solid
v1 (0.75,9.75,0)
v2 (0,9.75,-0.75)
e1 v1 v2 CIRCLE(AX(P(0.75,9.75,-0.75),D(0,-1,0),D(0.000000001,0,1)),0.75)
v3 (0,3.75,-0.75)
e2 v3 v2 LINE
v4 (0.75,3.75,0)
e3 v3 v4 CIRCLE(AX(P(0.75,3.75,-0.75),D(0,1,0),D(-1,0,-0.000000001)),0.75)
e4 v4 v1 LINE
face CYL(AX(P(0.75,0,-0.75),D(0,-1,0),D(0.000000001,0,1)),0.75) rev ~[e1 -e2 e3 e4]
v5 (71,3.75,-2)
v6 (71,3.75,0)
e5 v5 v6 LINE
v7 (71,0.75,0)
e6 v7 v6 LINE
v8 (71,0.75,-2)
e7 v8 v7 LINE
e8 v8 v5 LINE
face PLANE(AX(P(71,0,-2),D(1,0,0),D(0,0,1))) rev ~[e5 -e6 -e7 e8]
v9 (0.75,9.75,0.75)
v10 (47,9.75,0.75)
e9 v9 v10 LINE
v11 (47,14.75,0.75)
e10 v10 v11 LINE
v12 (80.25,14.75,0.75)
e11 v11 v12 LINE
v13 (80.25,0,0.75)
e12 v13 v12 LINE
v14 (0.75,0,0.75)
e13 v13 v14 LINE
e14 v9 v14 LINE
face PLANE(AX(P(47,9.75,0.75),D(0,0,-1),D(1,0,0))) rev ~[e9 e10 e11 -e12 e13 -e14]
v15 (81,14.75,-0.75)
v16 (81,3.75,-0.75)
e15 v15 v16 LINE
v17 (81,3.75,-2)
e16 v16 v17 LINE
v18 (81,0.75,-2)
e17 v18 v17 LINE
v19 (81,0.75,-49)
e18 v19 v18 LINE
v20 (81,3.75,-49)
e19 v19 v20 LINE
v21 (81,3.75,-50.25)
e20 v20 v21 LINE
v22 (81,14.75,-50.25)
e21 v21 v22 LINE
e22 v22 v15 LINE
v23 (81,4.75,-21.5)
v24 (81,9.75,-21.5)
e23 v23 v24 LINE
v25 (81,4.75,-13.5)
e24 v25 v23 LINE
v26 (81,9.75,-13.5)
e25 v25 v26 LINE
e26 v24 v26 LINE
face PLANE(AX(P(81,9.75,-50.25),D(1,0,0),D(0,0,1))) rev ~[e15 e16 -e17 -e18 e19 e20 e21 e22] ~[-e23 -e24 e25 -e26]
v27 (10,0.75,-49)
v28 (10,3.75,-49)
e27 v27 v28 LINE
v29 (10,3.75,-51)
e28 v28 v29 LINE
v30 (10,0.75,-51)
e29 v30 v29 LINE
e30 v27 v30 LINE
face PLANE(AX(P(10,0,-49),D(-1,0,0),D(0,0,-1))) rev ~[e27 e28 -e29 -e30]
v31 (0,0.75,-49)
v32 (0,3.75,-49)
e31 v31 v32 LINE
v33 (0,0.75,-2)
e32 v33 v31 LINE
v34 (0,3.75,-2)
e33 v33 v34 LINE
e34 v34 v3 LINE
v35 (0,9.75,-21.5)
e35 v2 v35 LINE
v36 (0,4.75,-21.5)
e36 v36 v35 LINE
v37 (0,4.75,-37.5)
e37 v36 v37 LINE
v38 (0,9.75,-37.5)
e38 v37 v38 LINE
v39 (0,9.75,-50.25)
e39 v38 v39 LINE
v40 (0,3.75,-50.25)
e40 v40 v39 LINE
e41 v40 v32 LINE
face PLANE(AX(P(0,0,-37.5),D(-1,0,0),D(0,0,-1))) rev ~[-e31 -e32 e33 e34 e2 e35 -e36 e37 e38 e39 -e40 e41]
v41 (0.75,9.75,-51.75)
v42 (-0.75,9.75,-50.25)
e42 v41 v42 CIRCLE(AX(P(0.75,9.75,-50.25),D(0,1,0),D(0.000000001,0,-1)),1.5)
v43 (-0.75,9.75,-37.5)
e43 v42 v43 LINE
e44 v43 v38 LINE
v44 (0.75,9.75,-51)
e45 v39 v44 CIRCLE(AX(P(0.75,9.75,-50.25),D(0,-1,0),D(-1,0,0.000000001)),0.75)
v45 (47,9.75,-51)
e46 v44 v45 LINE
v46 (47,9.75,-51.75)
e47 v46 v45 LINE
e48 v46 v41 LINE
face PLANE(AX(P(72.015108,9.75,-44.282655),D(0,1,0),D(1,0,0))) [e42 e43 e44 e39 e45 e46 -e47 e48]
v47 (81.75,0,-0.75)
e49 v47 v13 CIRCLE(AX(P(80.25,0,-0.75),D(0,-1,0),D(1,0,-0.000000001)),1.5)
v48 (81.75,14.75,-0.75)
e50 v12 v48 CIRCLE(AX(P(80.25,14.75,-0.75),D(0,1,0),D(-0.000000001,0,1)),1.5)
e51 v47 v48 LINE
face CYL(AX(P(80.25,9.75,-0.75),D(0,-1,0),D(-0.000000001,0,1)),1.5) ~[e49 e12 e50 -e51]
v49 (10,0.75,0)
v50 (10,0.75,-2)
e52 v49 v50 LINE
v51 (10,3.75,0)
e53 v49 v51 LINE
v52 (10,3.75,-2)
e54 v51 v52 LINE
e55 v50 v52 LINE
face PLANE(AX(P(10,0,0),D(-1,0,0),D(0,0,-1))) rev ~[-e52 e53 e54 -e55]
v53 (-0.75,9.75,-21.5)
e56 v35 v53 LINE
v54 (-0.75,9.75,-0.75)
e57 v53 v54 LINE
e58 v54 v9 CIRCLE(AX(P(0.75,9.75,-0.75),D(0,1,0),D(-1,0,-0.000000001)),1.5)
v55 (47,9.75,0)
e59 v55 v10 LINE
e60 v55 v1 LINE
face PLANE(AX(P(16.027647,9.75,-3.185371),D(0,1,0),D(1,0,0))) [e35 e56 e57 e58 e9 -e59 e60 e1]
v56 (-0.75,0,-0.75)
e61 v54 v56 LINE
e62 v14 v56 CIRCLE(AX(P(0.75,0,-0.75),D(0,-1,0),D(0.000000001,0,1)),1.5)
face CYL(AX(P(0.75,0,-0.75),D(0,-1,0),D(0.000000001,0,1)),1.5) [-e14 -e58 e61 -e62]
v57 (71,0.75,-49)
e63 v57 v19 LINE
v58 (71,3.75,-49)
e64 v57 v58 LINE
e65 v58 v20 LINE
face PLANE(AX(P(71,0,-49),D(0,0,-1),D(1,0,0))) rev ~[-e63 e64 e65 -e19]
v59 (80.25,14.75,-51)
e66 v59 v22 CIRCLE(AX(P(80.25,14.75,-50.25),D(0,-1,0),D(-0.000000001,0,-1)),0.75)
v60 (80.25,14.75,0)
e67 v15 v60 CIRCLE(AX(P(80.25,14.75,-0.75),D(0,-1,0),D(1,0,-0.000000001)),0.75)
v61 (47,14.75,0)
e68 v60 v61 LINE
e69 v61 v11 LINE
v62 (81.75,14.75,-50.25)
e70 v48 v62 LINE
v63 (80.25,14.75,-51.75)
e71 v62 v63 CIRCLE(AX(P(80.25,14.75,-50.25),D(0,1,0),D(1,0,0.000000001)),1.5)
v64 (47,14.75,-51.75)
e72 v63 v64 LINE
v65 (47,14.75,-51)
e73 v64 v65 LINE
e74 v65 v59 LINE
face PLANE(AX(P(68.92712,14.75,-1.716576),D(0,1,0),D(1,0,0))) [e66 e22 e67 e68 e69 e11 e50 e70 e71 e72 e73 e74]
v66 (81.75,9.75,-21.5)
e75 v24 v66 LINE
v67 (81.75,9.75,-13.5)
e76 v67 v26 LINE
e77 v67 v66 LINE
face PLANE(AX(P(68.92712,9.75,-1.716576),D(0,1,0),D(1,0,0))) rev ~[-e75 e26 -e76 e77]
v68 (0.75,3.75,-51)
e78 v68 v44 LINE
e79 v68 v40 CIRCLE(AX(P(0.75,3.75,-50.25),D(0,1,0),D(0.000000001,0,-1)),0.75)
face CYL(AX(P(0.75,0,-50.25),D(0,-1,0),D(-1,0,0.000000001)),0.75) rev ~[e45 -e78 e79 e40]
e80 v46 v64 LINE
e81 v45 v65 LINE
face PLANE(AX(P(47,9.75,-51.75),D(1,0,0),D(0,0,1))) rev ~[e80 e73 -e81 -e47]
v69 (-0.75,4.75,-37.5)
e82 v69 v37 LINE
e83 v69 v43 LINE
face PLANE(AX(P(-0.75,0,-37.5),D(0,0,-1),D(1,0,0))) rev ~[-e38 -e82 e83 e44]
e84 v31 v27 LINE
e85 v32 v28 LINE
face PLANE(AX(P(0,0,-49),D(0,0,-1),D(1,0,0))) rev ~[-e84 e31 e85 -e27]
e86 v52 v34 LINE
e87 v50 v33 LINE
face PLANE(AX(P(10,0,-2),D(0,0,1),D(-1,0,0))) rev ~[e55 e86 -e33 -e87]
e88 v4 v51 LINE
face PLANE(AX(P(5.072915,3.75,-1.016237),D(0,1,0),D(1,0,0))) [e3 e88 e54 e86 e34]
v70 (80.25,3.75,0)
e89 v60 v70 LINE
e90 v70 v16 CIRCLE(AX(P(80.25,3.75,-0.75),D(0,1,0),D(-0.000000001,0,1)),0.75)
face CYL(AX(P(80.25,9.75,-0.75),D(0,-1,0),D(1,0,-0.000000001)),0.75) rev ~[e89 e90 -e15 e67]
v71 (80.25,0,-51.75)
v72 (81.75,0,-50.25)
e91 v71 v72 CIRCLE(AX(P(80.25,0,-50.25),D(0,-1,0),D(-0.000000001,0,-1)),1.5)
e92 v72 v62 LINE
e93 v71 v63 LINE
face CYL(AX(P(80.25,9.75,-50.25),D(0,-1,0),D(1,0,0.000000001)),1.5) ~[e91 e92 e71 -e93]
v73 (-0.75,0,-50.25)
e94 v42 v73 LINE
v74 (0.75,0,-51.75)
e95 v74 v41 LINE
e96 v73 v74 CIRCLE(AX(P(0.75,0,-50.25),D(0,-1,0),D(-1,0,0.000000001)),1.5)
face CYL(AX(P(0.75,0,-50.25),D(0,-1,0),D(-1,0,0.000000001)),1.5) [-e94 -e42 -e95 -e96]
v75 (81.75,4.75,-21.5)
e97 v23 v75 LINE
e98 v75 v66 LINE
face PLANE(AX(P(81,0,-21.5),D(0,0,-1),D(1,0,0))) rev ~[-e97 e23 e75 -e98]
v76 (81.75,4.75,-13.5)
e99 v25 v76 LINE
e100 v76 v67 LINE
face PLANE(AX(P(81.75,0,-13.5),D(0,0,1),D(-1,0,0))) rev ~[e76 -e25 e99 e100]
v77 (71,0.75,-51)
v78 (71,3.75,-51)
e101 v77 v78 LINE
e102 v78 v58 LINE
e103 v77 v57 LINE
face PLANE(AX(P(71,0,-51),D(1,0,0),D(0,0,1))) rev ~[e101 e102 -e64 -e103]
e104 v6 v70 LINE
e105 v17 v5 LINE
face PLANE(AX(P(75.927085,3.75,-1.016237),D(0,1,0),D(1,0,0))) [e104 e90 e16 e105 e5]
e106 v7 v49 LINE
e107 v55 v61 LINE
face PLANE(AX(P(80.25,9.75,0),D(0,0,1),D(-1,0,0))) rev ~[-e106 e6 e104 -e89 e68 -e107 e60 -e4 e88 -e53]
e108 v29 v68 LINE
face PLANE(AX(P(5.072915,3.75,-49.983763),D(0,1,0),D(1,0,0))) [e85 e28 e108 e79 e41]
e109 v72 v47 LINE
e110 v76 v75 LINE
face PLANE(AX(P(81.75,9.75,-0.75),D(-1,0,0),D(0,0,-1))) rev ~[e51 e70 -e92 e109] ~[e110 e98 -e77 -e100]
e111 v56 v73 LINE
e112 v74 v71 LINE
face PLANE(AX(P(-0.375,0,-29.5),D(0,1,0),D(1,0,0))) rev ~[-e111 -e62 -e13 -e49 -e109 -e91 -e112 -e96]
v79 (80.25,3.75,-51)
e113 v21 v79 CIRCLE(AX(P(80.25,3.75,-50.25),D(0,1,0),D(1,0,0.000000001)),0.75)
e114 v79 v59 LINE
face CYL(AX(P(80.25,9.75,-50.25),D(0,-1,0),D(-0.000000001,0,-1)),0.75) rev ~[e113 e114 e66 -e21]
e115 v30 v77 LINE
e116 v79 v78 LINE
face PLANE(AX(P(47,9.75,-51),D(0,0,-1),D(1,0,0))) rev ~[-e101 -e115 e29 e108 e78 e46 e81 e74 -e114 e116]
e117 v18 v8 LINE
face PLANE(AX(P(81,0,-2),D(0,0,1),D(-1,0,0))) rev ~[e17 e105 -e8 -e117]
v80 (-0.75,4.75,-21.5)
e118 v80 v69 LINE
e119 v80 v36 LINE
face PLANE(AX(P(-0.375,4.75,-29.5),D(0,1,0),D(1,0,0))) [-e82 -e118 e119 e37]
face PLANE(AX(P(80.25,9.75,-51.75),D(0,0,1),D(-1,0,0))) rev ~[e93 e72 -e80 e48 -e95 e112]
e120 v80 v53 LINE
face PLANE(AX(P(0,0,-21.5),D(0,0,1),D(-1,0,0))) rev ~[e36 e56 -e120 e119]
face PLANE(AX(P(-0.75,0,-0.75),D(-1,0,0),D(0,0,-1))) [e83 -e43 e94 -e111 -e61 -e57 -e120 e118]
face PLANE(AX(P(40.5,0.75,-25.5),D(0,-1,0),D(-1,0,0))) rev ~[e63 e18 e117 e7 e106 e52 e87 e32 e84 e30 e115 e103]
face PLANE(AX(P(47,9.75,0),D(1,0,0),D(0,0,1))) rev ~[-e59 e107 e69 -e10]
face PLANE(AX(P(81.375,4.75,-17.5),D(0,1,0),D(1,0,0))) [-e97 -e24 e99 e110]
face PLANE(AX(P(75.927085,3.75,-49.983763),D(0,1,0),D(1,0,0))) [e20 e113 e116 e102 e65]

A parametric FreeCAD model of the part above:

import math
import FreeCAD as App
import Part
import Sketcher


def add_polygon(sketch, points):
    """Adds a closed chain of lines whose ends are joined by coincident constraints."""
    first, n = sketch.GeometryCount, len(points)
    for a, b in zip(points, points[1:] + points[:1]):
        sketch.addGeometry(Part.LineSegment(App.Vector(*a, 0), App.Vector(*b, 0)), False)
    for i in range(n):
        sketch.addConstraint(Sketcher.Constraint("Coincident", first + i, 2, first + (i + 1) % n, 1))

doc = App.newDocument("Part")
body = doc.addObject("PartDesign::Body", "Body")

sketch1 = doc.addObject("Sketcher::SketchObject", "Sketch")
body.addObject(sketch1)
sketch1.AttachmentSupport = (doc.XZ_Plane, [""])
sketch1.MapMode = "FlatFace"
sketch1.addGeometry(Part.LineSegment(App.Vector(80.2, -51.8, 0), App.Vector(0.8, -51.8, 0)), False)
sketch1.addGeometry(Part.ArcOfCircle(Part.Circle(App.Vector(0.7, -50.3, 0), App.Vector(0, 0, 1), 1.5), math.radians(180), math.radians(270)), False)
sketch1.addGeometry(Part.LineSegment(App.Vector(-0.8, -50.2, 0), App.Vector(-0.8, -0.8, 0)), False)
sketch1.addGeometry(Part.ArcOfCircle(Part.Circle(App.Vector(0.7, -0.7, 0), App.Vector(0, 0, 1), 1.5), math.radians(90), math.radians(180)), False)
sketch1.addGeometry(Part.LineSegment(App.Vector(0.8, 0.8, 0), App.Vector(80.2, 0.8, 0)), False)
sketch1.addGeometry(Part.ArcOfCircle(Part.Circle(App.Vector(80.3, -0.7, 0), App.Vector(0, 0, 1), 1.5), math.radians(0), math.radians(90)), False)
sketch1.addGeometry(Part.LineSegment(App.Vector(81.8, -0.8, 0), App.Vector(81.8, -50.2, 0)), False)
sketch1.addGeometry(Part.ArcOfCircle(Part.Circle(App.Vector(80.3, -50.3, 0), App.Vector(0, 0, 1), 1.5), math.radians(-90), math.radians(0)), False)
sketch1.addConstraint(Sketcher.Constraint("Tangent", 0, 2, 1, 2))
sketch1.addConstraint(Sketcher.Constraint("Tangent", 1, 1, 2, 1))
sketch1.addConstraint(Sketcher.Constraint("Tangent", 2, 2, 3, 2))
sketch1.addConstraint(Sketcher.Constraint("Tangent", 3, 1, 4, 1))
sketch1.addConstraint(Sketcher.Constraint("Tangent", 4, 2, 5, 2))
sketch1.addConstraint(Sketcher.Constraint("Tangent", 5, 1, 6, 1))
sketch1.addConstraint(Sketcher.Constraint("Tangent", 6, 2, 7, 2))
sketch1.addConstraint(Sketcher.Constraint("Tangent", 7, 1, 0, 1))
sketch1.addConstraint(Sketcher.Constraint("Horizontal", 0))
sketch1.addConstraint(Sketcher.Constraint("Vertical", 2))
sketch1.addConstraint(Sketcher.Constraint("Horizontal", 4))
sketch1.addConstraint(Sketcher.Constraint("Vertical", 6))
sketch1.addConstraint(Sketcher.Constraint("Equal", 1, 3))
sketch1.addConstraint(Sketcher.Constraint("Equal", 3, 5))
sketch1.addConstraint(Sketcher.Constraint("Equal", 5, 7))
sketch1.addConstraint(Sketcher.Constraint("Symmetric", 2, 2, 3, 1, -1, 1))
sketch1.addConstraint(Sketcher.Constraint("Radius", 1, 1.5))
sketch1.addConstraint(Sketcher.Constraint("DistanceX", 0, 2, 0, 1, 79.5))
sketch1.addConstraint(Sketcher.Constraint("DistanceY", 2, 1, 2, 2, 49.5))
pad1 = doc.addObject("PartDesign::Pad", "Pad")
body.addObject(pad1)
pad1.Profile = sketch1
pad1.Length = 0.75
pad1.Reversed = True

sketch2 = doc.addObject("Sketcher::SketchObject", "Sketch001")
body.addObject(sketch2)
sketch2.AttachmentSupport = (doc.XZ_Plane, [""])
sketch2.MapMode = "FlatFace"
sketch2.addGeometry(Part.LineSegment(App.Vector(10, -2, 0), App.Vector(0, -2, 0)), False)
sketch2.addGeometry(Part.LineSegment(App.Vector(0, -2, 0), App.Vector(0, -0.8, 0)), False)
sketch2.addGeometry(Part.ArcOfCircle(Part.Circle(App.Vector(0.8, -0.8, 0), App.Vector(0, 0, 1), 0.8), math.radians(90), math.radians(180)), False)
sketch2.addGeometry(Part.LineSegment(App.Vector(0.8, 0, 0), App.Vector(10, 0, 0)), False)
sketch2.addGeometry(Part.LineSegment(App.Vector(10, 0, 0), App.Vector(10, -2, 0)), False)
sketch2.addGeometry(Part.LineSegment(App.Vector(0, -50.2, 0), App.Vector(0, -49, 0)), False)
sketch2.addGeometry(Part.LineSegment(App.Vector(0, -49, 0), App.Vector(10, -49, 0)), False)
sketch2.addGeometry(Part.LineSegment(App.Vector(10, -49, 0), App.Vector(10, -51, 0)), False)
sketch2.addGeometry(Part.LineSegment(App.Vector(10, -51, 0), App.Vector(0.8, -51, 0)), False)
sketch2.addGeometry(Part.ArcOfCircle(Part.Circle(App.Vector(0.8, -50.2, 0), App.Vector(0, 0, 1), 0.8), math.radians(180), math.radians(270)), False)
sketch2.addGeometry(Part.LineSegment(App.Vector(80.2, -51, 0), App.Vector(71, -51, 0)), False)
sketch2.addGeometry(Part.LineSegment(App.Vector(71, -51, 0), App.Vector(71, -49, 0)), False)
sketch2.addGeometry(Part.LineSegment(App.Vector(71, -49, 0), App.Vector(81, -49, 0)), False)
sketch2.addGeometry(Part.LineSegment(App.Vector(81, -49, 0), App.Vector(81, -50.2, 0)), False)
sketch2.addGeometry(Part.ArcOfCircle(Part.Circle(App.Vector(80.2, -50.2, 0), App.Vector(0, 0, 1), 0.8), math.radians(-90), math.radians(0)), False)
sketch2.addGeometry(Part.LineSegment(App.Vector(71, -2, 0), App.Vector(71, 0, 0)), False)
sketch2.addGeometry(Part.LineSegment(App.Vector(71, 0, 0), App.Vector(80.2, 0, 0)), False)
sketch2.addGeometry(Part.ArcOfCircle(Part.Circle(App.Vector(80.2, -0.8, 0), App.Vector(0, 0, 1), 0.8), math.radians(0), math.radians(90)), False)
sketch2.addGeometry(Part.LineSegment(App.Vector(81, -0.8, 0), App.Vector(81, -2, 0)), False)
sketch2.addGeometry(Part.LineSegment(App.Vector(81, -2, 0), App.Vector(71, -2, 0)), False)
sketch2.addConstraint(Sketcher.Constraint("Coincident", 0, 2, 1, 1))
sketch2.addConstraint(Sketcher.Constraint("Tangent", 1, 2, 2, 2))
sketch2.addConstraint(Sketcher.Constraint("Tangent", 2, 1, 3, 1))
sketch2.addConstraint(Sketcher.Constraint("Coincident", 3, 2, 4, 1))
sketch2.addConstraint(Sketcher.Constraint("Coincident", 4, 2, 0, 1))
sketch2.addConstraint(Sketcher.Constraint("Coincident", 5, 2, 6, 1))
sketch2.addConstraint(Sketcher.Constraint("Coincident", 6, 2, 7, 1))
sketch2.addConstraint(Sketcher.Constraint("Coincident", 7, 2, 8, 1))
sketch2.addConstraint(Sketcher.Constraint("Tangent", 8, 2, 9, 2))
sketch2.addConstraint(Sketcher.Constraint("Tangent", 9, 1, 5, 1))
sketch2.addConstraint(Sketcher.Constraint("Coincident", 10, 2, 11, 1))
sketch2.addConstraint(Sketcher.Constraint("Coincident", 11, 2, 12, 1))
sketch2.addConstraint(Sketcher.Constraint("Coincident", 12, 2, 13, 1))
sketch2.addConstraint(Sketcher.Constraint("Tangent", 13, 2, 14, 2))
sketch2.addConstraint(Sketcher.Constraint("Tangent", 14, 1, 10, 1))
sketch2.addConstraint(Sketcher.Constraint("Coincident", 15, 2, 16, 1))
sketch2.addConstraint(Sketcher.Constraint("Tangent", 16, 2, 17, 2))
sketch2.addConstraint(Sketcher.Constraint("Tangent", 17, 1, 18, 1))
sketch2.addConstraint(Sketcher.Constraint("Coincident", 18, 2, 19, 1))
sketch2.addConstraint(Sketcher.Constraint("Coincident", 19, 2, 15, 1))
sketch2.addConstraint(Sketcher.Constraint("Horizontal", 0))
sketch2.addConstraint(Sketcher.Constraint("Vertical", 1))
sketch2.addConstraint(Sketcher.Constraint("Horizontal", 3))
sketch2.addConstraint(Sketcher.Constraint("Vertical", 4))
sketch2.addConstraint(Sketcher.Constraint("Vertical", 5))
sketch2.addConstraint(Sketcher.Constraint("Horizontal", 6))
sketch2.addConstraint(Sketcher.Constraint("Vertical", 7))
sketch2.addConstraint(Sketcher.Constraint("Horizontal", 8))
sketch2.addConstraint(Sketcher.Constraint("Horizontal", 10))
sketch2.addConstraint(Sketcher.Constraint("Vertical", 11))
sketch2.addConstraint(Sketcher.Constraint("Horizontal", 12))
sketch2.addConstraint(Sketcher.Constraint("Vertical", 13))
sketch2.addConstraint(Sketcher.Constraint("Vertical", 15))
sketch2.addConstraint(Sketcher.Constraint("Horizontal", 16))
sketch2.addConstraint(Sketcher.Constraint("Vertical", 18))
sketch2.addConstraint(Sketcher.Constraint("Horizontal", 19))
sketch2.addConstraint(Sketcher.Constraint("Equal", 2, 9))
sketch2.addConstraint(Sketcher.Constraint("Equal", 9, 14))
sketch2.addConstraint(Sketcher.Constraint("Equal", 14, 17))
sketch2.addConstraint(Sketcher.Constraint("PointOnObject", 0, 2, -2))
sketch2.addConstraint(Sketcher.Constraint("PointOnObject", 2, 1, -1))
sketch2.addConstraint(Sketcher.Constraint("PointOnObject", 5, 2, -2))
sketch2.addConstraint(Sketcher.Constraint("PointOnObject", 15, 2, -1))
sketch2.addConstraint(Sketcher.Constraint("Horizontal", 9, 3, 14, 3))
sketch2.addConstraint(Sketcher.Constraint("Horizontal", 6, 2, 11, 2))
sketch2.addConstraint(Sketcher.Constraint("Horizontal", 4, 2, 18, 2))
sketch2.addConstraint(Sketcher.Constraint("Vertical", 14, 3, 17, 3))
sketch2.addConstraint(Sketcher.Constraint("Vertical", 4, 2, 6, 2))
sketch2.addConstraint(Sketcher.Constraint("Vertical", 11, 2, 15, 2))
sketch2.addConstraint(Sketcher.Constraint("Equal", 8, 10))
sketch2.addConstraint(Sketcher.Constraint("Equal", 1, 5))
sketch2.addConstraint(Sketcher.Constraint("DistanceX", 0, 2, 0, 1, 10.0))
sketch2.addConstraint(Sketcher.Constraint("DistanceY", 4, 2, 4, 1, 2.0))
sketch2.addConstraint(Sketcher.Constraint("Radius", 2, 0.75))
sketch2.addConstraint(Sketcher.Constraint("DistanceY", 5, 2, -1, 1, 49.0))
sketch2.addConstraint(Sketcher.Constraint("DistanceX", -1, 1, 10, 2, 71.0))
pad2 = doc.addObject("PartDesign::Pad", "Pad001")
body.addObject(pad2)
pad2.Profile = sketch2
pad2.Length = 3.75
pad2.Reversed = True

sketch3 = doc.addObject("Sketcher::SketchObject", "Sketch002")
body.addObject(sketch3)
sketch3.AttachmentSupport = (doc.XZ_Plane, [""])
sketch3.MapMode = "FlatFace"
sketch3.addGeometry(Part.LineSegment(App.Vector(0, -21.5, 0), App.Vector(-0.8, -21.5, 0)), False)
sketch3.addGeometry(Part.LineSegment(App.Vector(-0.8, -21.5, 0), App.Vector(-0.8, -0.8, 0)), False)
sketch3.addGeometry(Part.ArcOfCircle(Part.Circle(App.Vector(0.7, -0.7, 0), App.Vector(0, 0, 1), 1.5), math.radians(90), math.radians(180)), False)
sketch3.addGeometry(Part.LineSegment(App.Vector(0.8, 0.8, 0), App.Vector(80.2, 0.8, 0)), False)
sketch3.addGeometry(Part.ArcOfCircle(Part.Circle(App.Vector(80.3, -0.7, 0), App.Vector(0, 0, 1), 1.5), math.radians(0), math.radians(90)), False)
sketch3.addGeometry(Part.LineSegment(App.Vector(81.8, -0.8, 0), App.Vector(81.8, -13.5, 0)), False)
sketch3.addGeometry(Part.LineSegment(App.Vector(81.8, -13.5, 0), App.Vector(81, -13.5, 0)), False)
sketch3.addGeometry(Part.LineSegment(App.Vector(81, -13.5, 0), App.Vector(81, -0.8, 0)), False)
sketch3.addGeometry(Part.ArcOfCircle(Part.Circle(App.Vector(80.2, -0.8, 0), App.Vector(0, 0, 1), 0.8), math.radians(0), math.radians(90)), False)
sketch3.addGeometry(Part.LineSegment(App.Vector(80.2, 0, 0), App.Vector(0.8, 0, 0)), False)
sketch3.addGeometry(Part.ArcOfCircle(Part.Circle(App.Vector(0.8, -0.8, 0), App.Vector(0, 0, 1), 0.8), math.radians(90), math.radians(180)), False)
sketch3.addGeometry(Part.LineSegment(App.Vector(0, -0.8, 0), App.Vector(0, -21.5, 0)), False)
sketch3.addGeometry(Part.ArcOfCircle(Part.Circle(App.Vector(80.2, -50.2, 0), App.Vector(0, 0, 1), 0.8), math.radians(-90), math.radians(0)), False)
sketch3.addGeometry(Part.LineSegment(App.Vector(81, -50.2, 0), App.Vector(81, -21.5, 0)), False)
sketch3.addGeometry(Part.LineSegment(App.Vector(81, -21.5, 0), App.Vector(81.8, -21.5, 0)), False)
sketch3.addGeometry(Part.LineSegment(App.Vector(81.8, -21.5, 0), App.Vector(81.8, -50.2, 0)), False)
sketch3.addGeometry(Part.ArcOfCircle(Part.Circle(App.Vector(80.3, -50.3, 0), App.Vector(0, 0, 1), 1.5), math.radians(-90), math.radians(0)), False)
sketch3.addGeometry(Part.LineSegment(App.Vector(80.2, -51.8, 0), App.Vector(0.8, -51.8, 0)), False)
sketch3.addGeometry(Part.ArcOfCircle(Part.Circle(App.Vector(0.7, -50.3, 0), App.Vector(0, 0, 1), 1.5), math.radians(180), math.radians(270)), False)
sketch3.addGeometry(Part.LineSegment(App.Vector(-0.8, -50.2, 0), App.Vector(-0.8, -37.5, 0)), False)
sketch3.addGeometry(Part.LineSegment(App.Vector(-0.8, -37.5, 0), App.Vector(0, -37.5, 0)), False)
sketch3.addGeometry(Part.LineSegment(App.Vector(0, -37.5, 0), App.Vector(0, -50.2, 0)), False)
sketch3.addGeometry(Part.ArcOfCircle(Part.Circle(App.Vector(0.8, -50.2, 0), App.Vector(0, 0, 1), 0.8), math.radians(180), math.radians(270)), False)
sketch3.addGeometry(Part.LineSegment(App.Vector(0.8, -51, 0), App.Vector(80.2, -51, 0)), False)
sketch3.addConstraint(Sketcher.Constraint("Coincident", 0, 2, 1, 1))
sketch3.addConstraint(Sketcher.Constraint("Tangent", 1, 2, 2, 2))
sketch3.addConstraint(Sketcher.Constraint("Tangent", 2, 1, 3, 1))
sketch3.addConstraint(Sketcher.Constraint("Tangent", 3, 2, 4, 2))
sketch3.addConstraint(Sketcher.Constraint("Tangent", 4, 1, 5, 1))
sketch3.addConstraint(Sketcher.Constraint("Coincident", 5, 2, 6, 1))
sketch3.addConstraint(Sketcher.Constraint("Coincident", 6, 2, 7, 1))
sketch3.addConstraint(Sketcher.Constraint("Tangent", 7, 2, 8, 1))
sketch3.addConstraint(Sketcher.Constraint("Tangent", 8, 2, 9, 1))
sketch3.addConstraint(Sketcher.Constraint("Tangent", 9, 2, 10, 1))
sketch3.addConstraint(Sketcher.Constraint("Tangent", 10, 2, 11, 1))
sketch3.addConstraint(Sketcher.Constraint("Coincident", 11, 2, 0, 1))
sketch3.addConstraint(Sketcher.Constraint("Tangent", 12, 2, 13, 1))
sketch3.addConstraint(Sketcher.Constraint("Coincident", 13, 2, 14, 1))
sketch3.addConstraint(Sketcher.Constraint("Coincident", 14, 2, 15, 1))
sketch3.addConstraint(Sketcher.Constraint("Tangent", 15, 2, 16, 2))
sketch3.addConstraint(Sketcher.Constraint("Tangent", 16, 1, 17, 1))
sketch3.addConstraint(Sketcher.Constraint("Tangent", 17, 2, 18, 2))
sketch3.addConstraint(Sketcher.Constraint("Tangent", 18, 1, 19, 1))
sketch3.addConstraint(Sketcher.Constraint("Coincident", 19, 2, 20, 1))
sketch3.addConstraint(Sketcher.Constraint("Coincident", 20, 2, 21, 1))
sketch3.addConstraint(Sketcher.Constraint("Tangent", 21, 2, 22, 1))
sketch3.addConstraint(Sketcher.Constraint("Tangent", 22, 2, 23, 1))
sketch3.addConstraint(Sketcher.Constraint("Tangent", 23, 2, 12, 1))
sketch3.addConstraint(Sketcher.Constraint("Horizontal", 0))
sketch3.addConstraint(Sketcher.Constraint("Vertical", 1))
sketch3.addConstraint(Sketcher.Constraint("Horizontal", 3))
sketch3.addConstraint(Sketcher.Constraint("Vertical", 5))
sketch3.addConstraint(Sketcher.Constraint("Horizontal", 6))
sketch3.addConstraint(Sketcher.Constraint("Vertical", 7))
sketch3.addConstraint(Sketcher.Constraint("Horizontal", 9))
sketch3.addConstraint(Sketcher.Constraint("Vertical", 11))
sketch3.addConstraint(Sketcher.Constraint("Vertical", 13))
sketch3.addConstraint(Sketcher.Constraint("Horizontal", 14))
sketch3.addConstraint(Sketcher.Constraint("Vertical", 15))
sketch3.addConstraint(Sketcher.Constraint("Horizontal", 17))
sketch3.addConstraint(Sketcher.Constraint("Vertical", 19))
sketch3.addConstraint(Sketcher.Constraint("Horizontal", 20))
sketch3.addConstraint(Sketcher.Constraint("Vertical", 21))
sketch3.addConstraint(Sketcher.Constraint("Horizontal", 23))
sketch3.addConstraint(Sketcher.Constraint("Coincident", 8, 3, 4, 3))
sketch3.addConstraint(Sketcher.Constraint("Coincident", 10, 3, 2, 3))
sketch3.addConstraint(Sketcher.Constraint("Coincident", 16, 3, 12, 3))
sketch3.addConstraint(Sketcher.Constraint("Coincident", 22, 3, 18, 3))
sketch3.addConstraint(Sketcher.Constraint("Equal", 2, 4))
sketch3.addConstraint(Sketcher.Constraint("Equal", 10, 12))
sketch3.addConstraint(Sketcher.Constraint("Equal", 4, 16))
sketch3.addConstraint(Sketcher.Constraint("Equal", 16, 18))
sketch3.addConstraint(Sketcher.Constraint("Symmetric", 1, 2, 2, 1, -1, 1))
sketch3.addConstraint(Sketcher.Constraint("PointOnObject", 8, 2, -1))
sketch3.addConstraint(Sketcher.Constraint("PointOnObject", 20, 2, -2))
sketch3.addConstraint(Sketcher.Constraint("Horizontal", 11, 2, 13, 2))
sketch3.addConstraint(Sketcher.Constraint("Vertical", 8, 3, 12, 3))
sketch3.addConstraint(Sketcher.Constraint("Equal", 7, 19))
sketch3.addConstraint(Sketcher.Constraint("Radius", 2, 1.5))
sketch3.addConstraint(Sketcher.Constraint("DistanceX", 3, 1, 3, 2, 79.5))
sketch3.addConstraint(Sketcher.Constraint("DistanceY", 22, 2, -1, 1, 51.0))
sketch3.addConstraint(Sketcher.Constraint("DistanceY", 13, 2, 6, 2, 8.0))
sketch3.addConstraint(Sketcher.Constraint("DistanceY", 19, 2, 0, 2, 16.0))
pad3 = doc.addObject("PartDesign::Pad", "Pad002")
body.addObject(pad3)
pad3.Profile = sketch3
pad3.Length = 9.75
pad3.Reversed = True

sketch4 = doc.addObject("Sketcher::SketchObject", "Sketch003")
body.addObject(sketch4)
sketch4.AttachmentSupport = (doc.XZ_Plane, [""])
sketch4.MapMode = "FlatFace"
add_polygon(sketch4, [(-0.8, -37.5), (-0.8, -21.5), (0, -21.5), (0, -37.5)])
add_polygon(sketch4, [(81, -21.5), (81, -13.5), (81.8, -13.5), (81.8, -21.5)])
sketch4.addConstraint(Sketcher.Constraint("Vertical", 0))
sketch4.addConstraint(Sketcher.Constraint("Horizontal", 1))
sketch4.addConstraint(Sketcher.Constraint("Vertical", 2))
sketch4.addConstraint(Sketcher.Constraint("Horizontal", 3))
sketch4.addConstraint(Sketcher.Constraint("Vertical", 4))
sketch4.addConstraint(Sketcher.Constraint("Horizontal", 5))
sketch4.addConstraint(Sketcher.Constraint("Vertical", 6))
sketch4.addConstraint(Sketcher.Constraint("Horizontal", 7))
sketch4.addConstraint(Sketcher.Constraint("PointOnObject", 1, 2, -2))
sketch4.addConstraint(Sketcher.Constraint("Horizontal", 1, 2, 6, 2))
sketch4.addConstraint(Sketcher.Constraint("Equal", 3, 5))
sketch4.addConstraint(Sketcher.Constraint("DistanceY", 0, 1, 0, 2, 16.0))
sketch4.addConstraint(Sketcher.Constraint("DistanceY", 4, 1, 4, 2, 8.0))
sketch4.addConstraint(Sketcher.Constraint("DistanceX", -1, 1, 4, 2, 81.0))
sketch4.addConstraint(Sketcher.Constraint("DistanceX", 1, 1, 1, 2, 0.75))
sketch4.addConstraint(Sketcher.Constraint("DistanceY", 0, 2, -1, 1, 21.5))
pad4 = doc.addObject("PartDesign::Pad", "Pad003")
body.addObject(pad4)
pad4.Profile = sketch4
pad4.Length = 4.75
pad4.Reversed = True

sketch5 = doc.addObject("Sketcher::SketchObject", "Sketch004")
body.addObject(sketch5)
sketch5.AttachmentSupport = (doc.XZ_Plane, [""])
sketch5.MapMode = "FlatFace"
sketch5.AttachmentOffset = App.Placement(App.Vector(0, 0, -9.75), App.Rotation())
sketch5.addGeometry(Part.LineSegment(App.Vector(47, 0, 0), App.Vector(47, 0.8, 0)), False)
sketch5.addGeometry(Part.LineSegment(App.Vector(47, 0.8, 0), App.Vector(80.2, 0.8, 0)), False)
sketch5.addGeometry(Part.ArcOfCircle(Part.Circle(App.Vector(80.3, -0.7, 0), App.Vector(0, 0, 1), 1.5), math.radians(0), math.radians(90)), False)
sketch5.addGeometry(Part.LineSegment(App.Vector(81.8, -0.8, 0), App.Vector(81.8, -50.2, 0)), False)
sketch5.addGeometry(Part.ArcOfCircle(Part.Circle(App.Vector(80.3, -50.3, 0), App.Vector(0, 0, 1), 1.5), math.radians(-90), math.radians(0)), False)
sketch5.addGeometry(Part.LineSegment(App.Vector(80.2, -51.8, 0), App.Vector(47, -51.8, 0)), False)
sketch5.addGeometry(Part.LineSegment(App.Vector(47, -51.8, 0), App.Vector(47, -51, 0)), False)
sketch5.addGeometry(Part.LineSegment(App.Vector(47, -51, 0), App.Vector(80.2, -51, 0)), False)
sketch5.addGeometry(Part.ArcOfCircle(Part.Circle(App.Vector(80.2, -50.2, 0), App.Vector(0, 0, 1), 0.8), math.radians(-90), math.radians(0)), False)
sketch5.addGeometry(Part.LineSegment(App.Vector(81, -50.2, 0), App.Vector(81, -0.8, 0)), False)
sketch5.addGeometry(Part.ArcOfCircle(Part.Circle(App.Vector(80.2, -0.8, 0), App.Vector(0, 0, 1), 0.8), math.radians(0), math.radians(90)), False)
sketch5.addGeometry(Part.LineSegment(App.Vector(80.2, 0, 0), App.Vector(47, 0, 0)), False)
sketch5.addConstraint(Sketcher.Constraint("Coincident", 0, 2, 1, 1))
sketch5.addConstraint(Sketcher.Constraint("Tangent", 1, 2, 2, 2))
sketch5.addConstraint(Sketcher.Constraint("Tangent", 2, 1, 3, 1))
sketch5.addConstraint(Sketcher.Constraint("Tangent", 3, 2, 4, 2))
sketch5.addConstraint(Sketcher.Constraint("Tangent", 4, 1, 5, 1))
sketch5.addConstraint(Sketcher.Constraint("Coincident", 5, 2, 6, 1))
sketch5.addConstraint(Sketcher.Constraint("Coincident", 6, 2, 7, 1))
sketch5.addConstraint(Sketcher.Constraint("Tangent", 7, 2, 8, 1))
sketch5.addConstraint(Sketcher.Constraint("Tangent", 8, 2, 9, 1))
sketch5.addConstraint(Sketcher.Constraint("Tangent", 9, 2, 10, 1))
sketch5.addConstraint(Sketcher.Constraint("Tangent", 10, 2, 11, 1))
sketch5.addConstraint(Sketcher.Constraint("Coincident", 11, 2, 0, 1))
sketch5.addConstraint(Sketcher.Constraint("Vertical", 0))
sketch5.addConstraint(Sketcher.Constraint("Horizontal", 1))
sketch5.addConstraint(Sketcher.Constraint("Vertical", 3))
sketch5.addConstraint(Sketcher.Constraint("Horizontal", 5))
sketch5.addConstraint(Sketcher.Constraint("Vertical", 6))
sketch5.addConstraint(Sketcher.Constraint("Horizontal", 7))
sketch5.addConstraint(Sketcher.Constraint("Vertical", 9))
sketch5.addConstraint(Sketcher.Constraint("Horizontal", 11))
sketch5.addConstraint(Sketcher.Constraint("Coincident", 8, 3, 4, 3))
sketch5.addConstraint(Sketcher.Constraint("Coincident", 10, 3, 2, 3))
sketch5.addConstraint(Sketcher.Constraint("Equal", 2, 4))
sketch5.addConstraint(Sketcher.Constraint("PointOnObject", 10, 2, -1))
sketch5.addConstraint(Sketcher.Constraint("Vertical", 0, 2, 5, 2))
sketch5.addConstraint(Sketcher.Constraint("Radius", 2, 1.5))
sketch5.addConstraint(Sketcher.Constraint("Radius", 8, 0.75))
sketch5.addConstraint(Sketcher.Constraint("DistanceY", 3, 2, 3, 1, 49.5))
sketch5.addConstraint(Sketcher.Constraint("DistanceX", -1, 1, 0, 2, 47.0))
sketch5.addConstraint(Sketcher.Constraint("DistanceX", -1, 1, 8, 2, 81.0))
pad5 = doc.addObject("PartDesign::Pad", "Pad004")
body.addObject(pad5)
pad5.Profile = sketch5
pad5.Length = 5
pad5.Reversed = True

doc.recompute()
